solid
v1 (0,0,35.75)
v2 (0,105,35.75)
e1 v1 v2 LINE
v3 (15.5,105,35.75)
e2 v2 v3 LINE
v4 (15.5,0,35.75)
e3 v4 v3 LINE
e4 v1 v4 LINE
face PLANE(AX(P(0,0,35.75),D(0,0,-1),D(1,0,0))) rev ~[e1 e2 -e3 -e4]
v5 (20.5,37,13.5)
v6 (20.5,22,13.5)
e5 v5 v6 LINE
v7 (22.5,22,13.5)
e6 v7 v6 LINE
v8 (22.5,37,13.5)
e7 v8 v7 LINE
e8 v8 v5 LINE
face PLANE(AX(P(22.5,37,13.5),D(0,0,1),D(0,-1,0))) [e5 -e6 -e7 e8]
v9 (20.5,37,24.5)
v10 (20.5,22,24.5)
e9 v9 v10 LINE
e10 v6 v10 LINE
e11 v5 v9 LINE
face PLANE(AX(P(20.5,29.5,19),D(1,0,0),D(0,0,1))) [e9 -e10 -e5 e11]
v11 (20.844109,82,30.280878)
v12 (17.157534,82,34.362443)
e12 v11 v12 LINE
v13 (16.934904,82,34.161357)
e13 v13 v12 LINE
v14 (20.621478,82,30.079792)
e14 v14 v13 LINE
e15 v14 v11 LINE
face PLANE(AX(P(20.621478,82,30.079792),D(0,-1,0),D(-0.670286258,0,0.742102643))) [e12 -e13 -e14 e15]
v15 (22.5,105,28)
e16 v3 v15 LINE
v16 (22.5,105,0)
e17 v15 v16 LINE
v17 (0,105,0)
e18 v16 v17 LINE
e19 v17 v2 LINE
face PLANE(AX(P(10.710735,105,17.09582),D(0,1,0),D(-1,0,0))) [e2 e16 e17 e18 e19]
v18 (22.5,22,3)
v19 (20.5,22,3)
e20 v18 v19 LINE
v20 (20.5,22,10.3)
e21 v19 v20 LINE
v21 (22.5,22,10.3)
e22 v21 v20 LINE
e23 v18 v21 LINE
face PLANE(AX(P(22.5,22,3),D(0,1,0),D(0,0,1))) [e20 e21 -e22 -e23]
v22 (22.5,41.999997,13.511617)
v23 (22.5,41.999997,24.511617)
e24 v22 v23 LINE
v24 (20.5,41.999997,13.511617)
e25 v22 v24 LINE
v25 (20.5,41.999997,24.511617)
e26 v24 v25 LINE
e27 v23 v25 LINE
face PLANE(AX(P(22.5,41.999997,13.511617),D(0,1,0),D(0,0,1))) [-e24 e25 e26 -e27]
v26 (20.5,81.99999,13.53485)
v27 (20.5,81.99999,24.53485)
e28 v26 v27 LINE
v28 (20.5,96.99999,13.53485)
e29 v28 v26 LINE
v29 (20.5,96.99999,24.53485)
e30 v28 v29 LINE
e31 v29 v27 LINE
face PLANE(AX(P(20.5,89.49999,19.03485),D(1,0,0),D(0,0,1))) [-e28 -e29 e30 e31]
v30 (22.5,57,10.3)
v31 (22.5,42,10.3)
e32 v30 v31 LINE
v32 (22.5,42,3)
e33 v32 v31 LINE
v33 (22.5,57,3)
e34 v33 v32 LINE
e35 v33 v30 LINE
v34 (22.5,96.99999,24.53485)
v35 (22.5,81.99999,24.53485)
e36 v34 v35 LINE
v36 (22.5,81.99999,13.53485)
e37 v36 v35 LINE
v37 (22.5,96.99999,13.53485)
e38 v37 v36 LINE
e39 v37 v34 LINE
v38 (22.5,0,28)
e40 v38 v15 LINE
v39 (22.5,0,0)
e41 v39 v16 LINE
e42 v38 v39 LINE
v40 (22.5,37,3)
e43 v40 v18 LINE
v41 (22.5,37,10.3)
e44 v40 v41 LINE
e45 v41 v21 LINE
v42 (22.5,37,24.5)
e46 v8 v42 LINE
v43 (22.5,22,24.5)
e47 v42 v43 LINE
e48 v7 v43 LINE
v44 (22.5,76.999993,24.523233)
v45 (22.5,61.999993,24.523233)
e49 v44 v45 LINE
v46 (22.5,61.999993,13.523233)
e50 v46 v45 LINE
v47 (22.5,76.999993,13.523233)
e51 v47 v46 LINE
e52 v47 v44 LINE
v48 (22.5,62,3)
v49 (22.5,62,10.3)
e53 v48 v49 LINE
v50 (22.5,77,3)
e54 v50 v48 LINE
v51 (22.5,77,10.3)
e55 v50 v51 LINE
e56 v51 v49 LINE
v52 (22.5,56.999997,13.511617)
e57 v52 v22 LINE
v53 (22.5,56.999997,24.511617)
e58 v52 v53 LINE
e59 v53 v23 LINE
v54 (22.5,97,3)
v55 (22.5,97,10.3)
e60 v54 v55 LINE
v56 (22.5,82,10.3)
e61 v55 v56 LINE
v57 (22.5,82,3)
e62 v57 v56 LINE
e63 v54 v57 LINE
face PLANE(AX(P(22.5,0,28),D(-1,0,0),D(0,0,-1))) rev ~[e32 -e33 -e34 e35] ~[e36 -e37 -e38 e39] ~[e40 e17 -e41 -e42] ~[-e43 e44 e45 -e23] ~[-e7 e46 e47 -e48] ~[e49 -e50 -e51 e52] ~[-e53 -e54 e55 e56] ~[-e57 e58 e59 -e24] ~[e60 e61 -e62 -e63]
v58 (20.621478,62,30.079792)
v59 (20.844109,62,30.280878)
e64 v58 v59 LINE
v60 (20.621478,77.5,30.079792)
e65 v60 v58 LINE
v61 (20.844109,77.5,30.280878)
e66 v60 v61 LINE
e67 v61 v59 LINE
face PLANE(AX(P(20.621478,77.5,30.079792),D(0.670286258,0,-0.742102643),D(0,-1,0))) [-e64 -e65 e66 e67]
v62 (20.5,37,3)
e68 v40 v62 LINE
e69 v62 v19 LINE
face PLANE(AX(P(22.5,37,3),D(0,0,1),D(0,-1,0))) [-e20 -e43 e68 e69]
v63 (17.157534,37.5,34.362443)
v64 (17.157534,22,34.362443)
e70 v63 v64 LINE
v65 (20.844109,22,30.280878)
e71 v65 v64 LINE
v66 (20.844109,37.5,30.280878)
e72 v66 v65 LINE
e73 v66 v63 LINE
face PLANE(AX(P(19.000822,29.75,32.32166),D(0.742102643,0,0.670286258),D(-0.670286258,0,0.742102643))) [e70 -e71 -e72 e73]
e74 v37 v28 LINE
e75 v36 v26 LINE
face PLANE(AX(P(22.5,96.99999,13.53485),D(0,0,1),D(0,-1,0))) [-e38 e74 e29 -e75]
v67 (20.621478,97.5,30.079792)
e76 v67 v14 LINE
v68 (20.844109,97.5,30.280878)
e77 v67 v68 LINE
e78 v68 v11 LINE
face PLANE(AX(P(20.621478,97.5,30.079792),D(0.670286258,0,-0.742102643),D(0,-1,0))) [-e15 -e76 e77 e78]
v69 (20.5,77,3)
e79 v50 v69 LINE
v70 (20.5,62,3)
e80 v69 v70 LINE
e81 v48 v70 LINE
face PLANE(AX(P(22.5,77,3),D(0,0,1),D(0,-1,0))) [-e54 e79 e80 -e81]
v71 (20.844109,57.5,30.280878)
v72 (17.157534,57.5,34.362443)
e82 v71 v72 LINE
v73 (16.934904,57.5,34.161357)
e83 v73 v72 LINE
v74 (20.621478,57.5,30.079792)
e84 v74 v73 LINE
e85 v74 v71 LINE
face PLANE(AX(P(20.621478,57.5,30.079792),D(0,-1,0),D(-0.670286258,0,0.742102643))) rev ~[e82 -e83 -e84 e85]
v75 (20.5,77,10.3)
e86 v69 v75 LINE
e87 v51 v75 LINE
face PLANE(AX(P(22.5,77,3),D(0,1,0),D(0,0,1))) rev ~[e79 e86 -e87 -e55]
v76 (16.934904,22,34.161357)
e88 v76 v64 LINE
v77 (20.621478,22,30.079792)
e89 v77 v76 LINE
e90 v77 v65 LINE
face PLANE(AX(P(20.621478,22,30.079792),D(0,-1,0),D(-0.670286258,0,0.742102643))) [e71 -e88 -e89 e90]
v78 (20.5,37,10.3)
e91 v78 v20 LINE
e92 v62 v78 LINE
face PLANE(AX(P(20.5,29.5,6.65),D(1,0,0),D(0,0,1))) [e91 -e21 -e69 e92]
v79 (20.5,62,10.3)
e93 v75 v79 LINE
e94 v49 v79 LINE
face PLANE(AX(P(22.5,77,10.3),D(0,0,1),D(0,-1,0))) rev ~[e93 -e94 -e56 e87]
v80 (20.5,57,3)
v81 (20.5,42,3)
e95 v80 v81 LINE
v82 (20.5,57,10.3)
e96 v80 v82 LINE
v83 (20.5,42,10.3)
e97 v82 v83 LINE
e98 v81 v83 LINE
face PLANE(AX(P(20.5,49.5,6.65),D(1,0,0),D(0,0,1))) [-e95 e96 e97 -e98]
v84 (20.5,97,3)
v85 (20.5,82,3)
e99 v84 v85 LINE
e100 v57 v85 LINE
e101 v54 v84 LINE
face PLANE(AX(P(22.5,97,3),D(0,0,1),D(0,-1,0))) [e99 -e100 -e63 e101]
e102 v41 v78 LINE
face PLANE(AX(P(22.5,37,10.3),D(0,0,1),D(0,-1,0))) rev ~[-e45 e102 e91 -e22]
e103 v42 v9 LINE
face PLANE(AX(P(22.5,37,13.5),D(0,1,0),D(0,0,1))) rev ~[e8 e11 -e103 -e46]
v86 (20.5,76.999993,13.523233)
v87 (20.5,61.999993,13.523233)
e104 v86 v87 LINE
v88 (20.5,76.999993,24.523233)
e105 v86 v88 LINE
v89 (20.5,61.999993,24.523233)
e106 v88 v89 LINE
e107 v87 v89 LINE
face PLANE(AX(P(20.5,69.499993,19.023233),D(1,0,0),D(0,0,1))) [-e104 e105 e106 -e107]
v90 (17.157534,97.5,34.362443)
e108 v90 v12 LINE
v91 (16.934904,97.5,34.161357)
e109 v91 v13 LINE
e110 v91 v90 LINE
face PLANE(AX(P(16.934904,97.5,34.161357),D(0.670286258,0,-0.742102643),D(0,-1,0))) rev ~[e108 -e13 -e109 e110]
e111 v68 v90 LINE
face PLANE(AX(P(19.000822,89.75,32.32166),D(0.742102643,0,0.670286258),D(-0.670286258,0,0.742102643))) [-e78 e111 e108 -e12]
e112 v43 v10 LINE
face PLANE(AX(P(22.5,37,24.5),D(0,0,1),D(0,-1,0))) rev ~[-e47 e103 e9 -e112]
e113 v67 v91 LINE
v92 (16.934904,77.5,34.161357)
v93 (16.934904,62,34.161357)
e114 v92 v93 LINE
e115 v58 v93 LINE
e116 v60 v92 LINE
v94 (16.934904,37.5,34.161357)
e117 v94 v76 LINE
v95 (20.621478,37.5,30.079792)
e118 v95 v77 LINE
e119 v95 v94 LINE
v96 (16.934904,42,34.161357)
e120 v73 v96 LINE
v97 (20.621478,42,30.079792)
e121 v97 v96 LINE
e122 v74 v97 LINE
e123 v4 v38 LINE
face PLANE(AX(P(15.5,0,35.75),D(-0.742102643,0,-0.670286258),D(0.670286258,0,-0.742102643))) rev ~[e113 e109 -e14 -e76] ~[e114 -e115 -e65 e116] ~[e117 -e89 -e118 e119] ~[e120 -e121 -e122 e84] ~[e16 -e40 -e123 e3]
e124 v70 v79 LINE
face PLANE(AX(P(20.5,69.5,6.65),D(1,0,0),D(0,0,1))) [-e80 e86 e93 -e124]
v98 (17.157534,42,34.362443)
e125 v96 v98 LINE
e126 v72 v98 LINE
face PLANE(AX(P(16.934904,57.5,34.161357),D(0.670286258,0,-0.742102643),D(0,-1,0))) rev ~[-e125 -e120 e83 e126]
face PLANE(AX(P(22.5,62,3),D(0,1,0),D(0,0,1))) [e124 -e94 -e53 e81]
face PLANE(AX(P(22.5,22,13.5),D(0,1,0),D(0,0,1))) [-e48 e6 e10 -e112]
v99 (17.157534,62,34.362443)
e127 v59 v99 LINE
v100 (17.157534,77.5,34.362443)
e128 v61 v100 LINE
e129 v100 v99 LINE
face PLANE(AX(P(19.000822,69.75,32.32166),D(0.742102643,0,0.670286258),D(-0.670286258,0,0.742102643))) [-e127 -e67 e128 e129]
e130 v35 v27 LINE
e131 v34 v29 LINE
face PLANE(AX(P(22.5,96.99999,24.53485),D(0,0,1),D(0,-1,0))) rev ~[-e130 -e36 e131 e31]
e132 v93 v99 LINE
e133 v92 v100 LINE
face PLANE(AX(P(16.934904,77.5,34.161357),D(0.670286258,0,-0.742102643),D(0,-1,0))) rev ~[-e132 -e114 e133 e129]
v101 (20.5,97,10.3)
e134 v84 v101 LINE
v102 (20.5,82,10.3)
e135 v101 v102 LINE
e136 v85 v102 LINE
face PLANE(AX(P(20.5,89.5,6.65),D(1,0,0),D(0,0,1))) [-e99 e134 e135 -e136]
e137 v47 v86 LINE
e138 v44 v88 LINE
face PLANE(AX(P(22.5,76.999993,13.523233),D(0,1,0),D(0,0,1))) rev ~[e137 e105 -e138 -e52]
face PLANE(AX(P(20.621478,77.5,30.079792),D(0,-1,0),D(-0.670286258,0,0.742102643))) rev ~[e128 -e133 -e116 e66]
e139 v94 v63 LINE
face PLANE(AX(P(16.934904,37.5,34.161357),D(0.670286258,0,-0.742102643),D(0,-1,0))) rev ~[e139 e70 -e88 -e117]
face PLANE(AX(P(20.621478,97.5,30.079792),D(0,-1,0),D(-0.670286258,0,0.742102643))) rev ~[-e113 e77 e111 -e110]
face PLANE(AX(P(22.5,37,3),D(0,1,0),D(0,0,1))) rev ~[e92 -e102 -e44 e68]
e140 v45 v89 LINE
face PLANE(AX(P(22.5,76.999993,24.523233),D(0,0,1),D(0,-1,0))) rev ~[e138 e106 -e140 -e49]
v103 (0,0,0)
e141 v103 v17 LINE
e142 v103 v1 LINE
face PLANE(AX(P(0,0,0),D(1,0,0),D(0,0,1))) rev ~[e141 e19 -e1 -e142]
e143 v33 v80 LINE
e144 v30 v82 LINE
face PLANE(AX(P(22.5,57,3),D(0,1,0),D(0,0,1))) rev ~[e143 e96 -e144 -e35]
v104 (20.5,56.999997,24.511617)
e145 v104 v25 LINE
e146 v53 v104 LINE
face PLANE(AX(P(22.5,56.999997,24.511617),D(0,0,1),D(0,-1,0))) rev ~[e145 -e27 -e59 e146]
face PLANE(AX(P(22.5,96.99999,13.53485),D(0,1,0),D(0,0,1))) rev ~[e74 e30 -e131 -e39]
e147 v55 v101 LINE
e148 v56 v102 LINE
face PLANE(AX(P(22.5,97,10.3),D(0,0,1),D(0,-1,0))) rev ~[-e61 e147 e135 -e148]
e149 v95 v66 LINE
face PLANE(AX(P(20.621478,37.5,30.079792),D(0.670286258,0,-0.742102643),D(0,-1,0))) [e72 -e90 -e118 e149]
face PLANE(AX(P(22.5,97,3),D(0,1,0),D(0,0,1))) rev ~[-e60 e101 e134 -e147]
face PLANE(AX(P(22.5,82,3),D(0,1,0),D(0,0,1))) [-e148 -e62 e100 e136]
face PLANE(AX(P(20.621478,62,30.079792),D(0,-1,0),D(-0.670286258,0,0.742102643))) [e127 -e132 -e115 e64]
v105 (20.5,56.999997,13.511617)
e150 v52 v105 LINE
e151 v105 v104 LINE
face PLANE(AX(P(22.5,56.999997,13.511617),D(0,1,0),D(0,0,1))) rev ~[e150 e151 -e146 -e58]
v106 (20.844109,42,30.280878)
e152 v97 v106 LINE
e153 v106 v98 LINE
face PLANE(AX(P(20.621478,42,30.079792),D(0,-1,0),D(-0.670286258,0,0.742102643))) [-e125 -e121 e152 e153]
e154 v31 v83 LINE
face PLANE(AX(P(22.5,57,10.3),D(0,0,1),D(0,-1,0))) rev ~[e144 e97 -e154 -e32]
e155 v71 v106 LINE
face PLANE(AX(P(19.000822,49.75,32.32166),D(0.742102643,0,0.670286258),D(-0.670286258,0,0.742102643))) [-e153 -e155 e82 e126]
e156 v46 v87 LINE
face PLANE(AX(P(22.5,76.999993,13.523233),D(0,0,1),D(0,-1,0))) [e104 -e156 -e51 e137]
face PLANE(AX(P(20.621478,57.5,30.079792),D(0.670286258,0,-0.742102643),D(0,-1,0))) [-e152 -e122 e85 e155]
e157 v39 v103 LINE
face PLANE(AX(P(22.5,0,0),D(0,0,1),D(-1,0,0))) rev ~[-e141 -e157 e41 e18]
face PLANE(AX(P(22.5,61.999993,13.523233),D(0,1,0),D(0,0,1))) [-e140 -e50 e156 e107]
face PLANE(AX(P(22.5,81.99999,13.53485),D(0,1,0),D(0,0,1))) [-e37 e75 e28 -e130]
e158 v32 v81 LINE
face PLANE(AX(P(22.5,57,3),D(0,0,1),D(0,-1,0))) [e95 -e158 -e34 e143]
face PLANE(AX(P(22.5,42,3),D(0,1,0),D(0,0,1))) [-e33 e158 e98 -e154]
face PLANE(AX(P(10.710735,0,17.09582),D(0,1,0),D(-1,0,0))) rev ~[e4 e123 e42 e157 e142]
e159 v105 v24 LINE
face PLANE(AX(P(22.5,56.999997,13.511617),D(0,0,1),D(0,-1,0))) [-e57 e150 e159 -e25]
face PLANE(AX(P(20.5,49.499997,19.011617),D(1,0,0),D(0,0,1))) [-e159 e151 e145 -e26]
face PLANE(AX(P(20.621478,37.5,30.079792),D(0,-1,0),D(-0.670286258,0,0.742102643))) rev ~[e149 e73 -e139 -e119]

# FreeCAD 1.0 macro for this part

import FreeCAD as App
import Part
import Sketcher

V = App.Vector
Q = App.Units.Quantity


def add_polygon(sketch, points):
    """Adds a closed chain of lines whose ends are joined by coincident constraints."""
    first, n = sketch.GeometryCount, len(points)
    for a, b in zip(points, points[1:] + points[:1]):
        sketch.addGeometry(Part.LineSegment(App.Vector(*a, 0), App.Vector(*b, 0)), False)
    for i in range(n):
        sketch.addConstraint(Sketcher.Constraint("Coincident", first + i, 2, first + (i + 1) % n, 1))

doc = App.newDocument("Part")
body = doc.addObject("PartDesign::Body", "Body")

sketch1 = body.newObject("Sketcher::SketchObject", "Sketch")
sketch1.AttachmentSupport = (doc.getObject("XZ_Plane"), [""])
sketch1.MapMode = "FlatFace"
add_polygon(sketch1, [(15.5, 35.75), (0, 35.75), (0, 0), (22.5, 0), (22.5, 28)])
sketch1.addConstraint(Sketcher.Constraint("Horizontal", 0))
sketch1.addConstraint(Sketcher.Constraint("Vertical", 1))
sketch1.addConstraint(Sketcher.Constraint("Horizontal", 2))
sketch1.addConstraint(Sketcher.Constraint("Vertical", 3))
sketch1.addConstraint(Sketcher.Constraint("Coincident", 1, 2, -1, 1))
sketch1.addConstraint(Sketcher.Constraint("DistanceY", 3, 1, 3, 2, Q("28 mm")))
sketch1.addConstraint(Sketcher.Constraint("DistanceX", 0, 2, 0, 1, Q("15.5 mm")))
sketch1.addConstraint(Sketcher.Constraint("DistanceX", 2, 1, 2, 2, Q("22.5 mm")))
sketch1.addConstraint(Sketcher.Constraint("DistanceY", 1, 2, 1, 1, Q("35.75 mm")))
pad1 = body.newObject("PartDesign::Pad", "Pad")
pad1.Profile = sketch1
pad1.Length = 105
pad1.Reversed = True

sketch2 = body.newObject("Sketcher::SketchObject", "Sketch001")
sketch2.Placement = App.Placement(V(26.318911, 0, 23.77192), App.Rotation(V(-0.670286258, 0, 0.742102643), V(0, -1, 0), V(0.742102643, 0, 0.670286258), "ZXY"))
add_polygon(sketch2, [(8.5, -22), (8.5, -37.5), (14, -37.5), (14, -22)])
add_polygon(sketch2, [(8.5, -42), (8.5, -57.5), (14, -57.5), (14, -42)])
add_polygon(sketch2, [(8.5, -62), (8.5, -77.5), (14, -77.5), (14, -62)])
add_polygon(sketch2, [(8.5, -82), (8.5, -97.5), (14, -97.5), (14, -82)])
sketch2.addConstraint(Sketcher.Constraint("Vertical", 0))
sketch2.addConstraint(Sketcher.Constraint("Horizontal", 1))
sketch2.addConstraint(Sketcher.Constraint("Vertical", 2))
sketch2.addConstraint(Sketcher.Constraint("Horizontal", 3))
sketch2.addConstraint(Sketcher.Constraint("Vertical", 4))
sketch2.addConstraint(Sketcher.Constraint("Horizontal", 5))
sketch2.addConstraint(Sketcher.Constraint("Vertical", 6))
sketch2.addConstraint(Sketcher.Constraint("Horizontal", 7))
sketch2.addConstraint(Sketcher.Constraint("Vertical", 8))
sketch2.addConstraint(Sketcher.Constraint("Horizontal", 9))
sketch2.addConstraint(Sketcher.Constraint("Vertical", 10))
sketch2.addConstraint(Sketcher.Constraint("Horizontal", 11))
sketch2.addConstraint(Sketcher.Constraint("Vertical", 12))
sketch2.addConstraint(Sketcher.Constraint("Horizontal", 13))
sketch2.addConstraint(Sketcher.Constraint("Vertical", 14))
sketch2.addConstraint(Sketcher.Constraint("Horizontal", 15))
sketch2.addConstraint(Sketcher.Constraint("Vertical", 3, 2, 4, 2))
sketch2.addConstraint(Sketcher.Constraint("Vertical", 2, 2, 5, 2))
sketch2.addConstraint(Sketcher.Constraint("Vertical", 7, 2, 8, 2))
sketch2.addConstraint(Sketcher.Constraint("Vertical", 6, 2, 9, 2))
sketch2.addConstraint(Sketcher.Constraint("Vertical", 11, 2, 12, 2))
sketch2.addConstraint(Sketcher.Constraint("Vertical", 10, 2, 13, 2))
sketch2.addConstraint(Sketcher.Constraint("Equal", 2, 4))
sketch2.addConstraint(Sketcher.Constraint("Equal", 6, 8))
sketch2.addConstraint(Sketcher.Constraint("Equal", 10, 12))
sketch2.addConstraint(Sketcher.Constraint("DistanceX", 1, 1, 1, 2, Q("5.5 mm")))
sketch2.addConstraint(Sketcher.Constraint("DistanceY", 0, 2, 0, 1, Q("15.5 mm")))
sketch2.addConstraint(Sketcher.Constraint("DistanceX", -1, 1, 1, 2, Q("14 mm")))
sketch2.addConstraint(Sketcher.Constraint("DistanceY", 2, 2, -1, 1, Q("22 mm")))
sketch2.addConstraint(Sketcher.Constraint("DistanceY", 6, 2, -1, 1, Q("42 mm")))
sketch2.addConstraint(Sketcher.Constraint("DistanceY", 10, 2, -1, 1, Q("62 mm")))
sketch2.addConstraint(Sketcher.Constraint("DistanceY", 14, 2, -1, 1, Q("82 mm")))
pad2 = body.newObject("PartDesign::Pad", "Pad001")
pad2.Profile = sketch2
pad2.Length = 0.3

sketch3 = body.newObject("Sketcher::SketchObject", "Sketch002")
sketch3.AttachmentSupport = (doc.getObject("YZ_Plane"), [""])
sketch3.MapMode = "FlatFace"
sketch3.AttachmentOffset = App.Placement(V(0, 0, 22.5), App.Rotation())
add_polygon(sketch3, [(22, 3), (37, 3), (37, 10.3), (22, 10.3)])
add_polygon(sketch3, [(42, 3), (57, 3), (57, 10.3), (42, 10.3)])
add_polygon(sketch3, [(62, 3), (77, 3), (77, 10.3), (62, 10.3)])
add_polygon(sketch3, [(82, 3), (97, 3), (97, 10.3), (82, 10.3)])
add_polygon(sketch3, [(22, 13.5), (37, 13.5), (37, 24.5), (22, 24.5)])
add_polygon(sketch3, [(41.999997, 13.511617), (56.999997, 13.511617), (56.999997, 24.511617), (41.999997, 24.511617)])
add_polygon(sketch3, [(61.999993, 13.523233), (76.999993, 13.523233), (76.999993, 24.523233), (61.999993, 24.523233)])
add_polygon(sketch3, [(81.99999, 13.53485), (96.99999, 13.53485), (96.99999, 24.53485), (81.99999, 24.53485)])
sketch3.addConstraint(Sketcher.Constraint("Horizontal", 0))
sketch3.addConstraint(Sketcher.Constraint("Vertical", 1))
sketch3.addConstraint(Sketcher.Constraint("Horizontal", 2))
sketch3.addConstraint(Sketcher.Constraint("Vertical", 3))
sketch3.addConstraint(Sketcher.Constraint("Horizontal", 4))
sketch3.addConstraint(Sketcher.Constraint("Vertical", 5))
sketch3.addConstraint(Sketcher.Constraint("Horizontal", 6))
sketch3.addConstraint(Sketcher.Constraint("Vertical", 7))
sketch3.addConstraint(Sketcher.Constraint("Horizontal", 8))
sketch3.addConstraint(Sketcher.Constraint("Vertical", 9))
sketch3.addConstraint(Sketcher.Constraint("Horizontal", 10))
sketch3.addConstraint(Sketcher.Constraint("Vertical", 11))
sketch3.addConstraint(Sketcher.Constraint("Horizontal", 12))
sketch3.addConstraint(Sketcher.Constraint("Vertical", 13))
sketch3.addConstraint(Sketcher.Constraint("Horizontal", 14))
sketch3.addConstraint(Sketcher.Constraint("Vertical", 15))
sketch3.addConstraint(Sketcher.Constraint("Horizontal", 16))
sketch3.addConstraint(Sketcher.Constraint("Vertical", 17))
sketch3.addConstraint(Sketcher.Constraint("Horizontal", 18))
sketch3.addConstraint(Sketcher.Constraint("Vertical", 19))
sketch3.addConstraint(Sketcher.Constraint("Horizontal", 20))
sketch3.addConstraint(Sketcher.Constraint("Vertical", 21))
sketch3.addConstraint(Sketcher.Constraint("Horizontal", 22))
sketch3.addConstraint(Sketcher.Constraint("Vertical", 23))
sketch3.addConstraint(Sketcher.Constraint("Horizontal", 24))
sketch3.addConstraint(Sketcher.Constraint("Vertical", 25))
sketch3.addConstraint(Sketcher.Constraint("Horizontal", 26))
sketch3.addConstraint(Sketcher.Constraint("Vertical", 27))
sketch3.addConstraint(Sketcher.Constraint("Horizontal", 28))
sketch3.addConstraint(Sketcher.Constraint("Vertical", 29))
sketch3.addConstraint(Sketcher.Constraint("Horizontal", 30))
sketch3.addConstraint(Sketcher.Constraint("Vertical", 31))
sketch3.addConstraint(Sketcher.Constraint("Horizontal", 3, 2, 4, 2))
sketch3.addConstraint(Sketcher.Constraint("Horizontal", 2, 2, 5, 2))
sketch3.addConstraint(Sketcher.Constraint("Horizontal", 7, 2, 8, 2))
sketch3.addConstraint(Sketcher.Constraint("Horizontal", 6, 2, 9, 2))
sketch3.addConstraint(Sketcher.Constraint("Horizontal", 11, 2, 12, 2))
sketch3.addConstraint(Sketcher.Constraint("Horizontal", 10, 2, 13, 2))
sketch3.addConstraint(Sketcher.Constraint("Vertical", 1, 2, 16, 2))
sketch3.addConstraint(Sketcher.Constraint("Vertical", 3, 2, 18, 2))
sketch3.addConstraint(Sketcher.Constraint("Equal", 2, 4))
sketch3.addConstraint(Sketcher.Constraint("Equal", 6, 8))
sketch3.addConstraint(Sketcher.Constraint("Equal", 10, 12))
sketch3.addConstraint(Sketcher.Constraint("Equal", 18, 20))
sketch3.addConstraint(Sketcher.Constraint("Equal", 22, 24))
sketch3.addConstraint(Sketcher.Constraint("Equal", 26, 28))
sketch3.addConstraint(Sketcher.Constraint("Equal", 19, 21))
sketch3.addConstraint(Sketcher.Constraint("Equal", 23, 25))
sketch3.addConstraint(Sketcher.Constraint("Equal", 27, 29))
sketch3.addConstraint(Sketcher.Constraint("DistanceX", 0, 1, 0, 2, Q("15 mm")))
sketch3.addConstraint(Sketcher.Constraint("DistanceY", 17, 1, 17, 2, Q("11 mm")))
sketch3.addConstraint(Sketcher.Constraint("DistanceY", 1, 1, 1, 2, Q("7.3 mm")))
sketch3.addConstraint(Sketcher.Constraint("DistanceX", -1, 1, 0, 2, Q("37 mm")))
sketch3.addConstraint(Sketcher.Constraint("DistanceY", -1, 1, 0, 2, Q("3 mm")))
sketch3.addConstraint(Sketcher.Constraint("DistanceX", -1, 1, 4, 2, Q("57 mm")))
sketch3.addConstraint(Sketcher.Constraint("DistanceX", -1, 1, 8, 2, Q("77 mm")))
sketch3.addConstraint(Sketcher.Constraint("DistanceX", -1, 1, 12, 2, Q("97 mm")))
sketch3.addConstraint(Sketcher.Constraint("DistanceY", -1, 1, 16, 2, Q("13.5 mm")))
sketch3.addConstraint(Sketcher.Constraint("DistanceX", -1, 1, 28, 2, Q("96.99999 mm")))
sketch3.addConstraint(Sketcher.Constraint("DistanceY", -1, 1, 28, 2, Q("13.53485 mm")))
sketch3.addConstraint(Sketcher.Constraint("DistanceX", -1, 1, 20, 2, Q("56.999997 mm")))
sketch3.addConstraint(Sketcher.Constraint("DistanceY", -1, 1, 20, 2, Q("13.511617 mm")))
sketch3.addConstraint(Sketcher.Constraint("DistanceX", -1, 1, 24, 2, Q("76.999993 mm")))
sketch3.addConstraint(Sketcher.Constraint("DistanceY", -1, 1, 24, 2, Q("13.523233 mm")))
pocket1 = body.newObject("PartDesign::Pocket", "Pocket")
pocket1.Profile = sketch3
pocket1.Length = 2

doc.recompute()
